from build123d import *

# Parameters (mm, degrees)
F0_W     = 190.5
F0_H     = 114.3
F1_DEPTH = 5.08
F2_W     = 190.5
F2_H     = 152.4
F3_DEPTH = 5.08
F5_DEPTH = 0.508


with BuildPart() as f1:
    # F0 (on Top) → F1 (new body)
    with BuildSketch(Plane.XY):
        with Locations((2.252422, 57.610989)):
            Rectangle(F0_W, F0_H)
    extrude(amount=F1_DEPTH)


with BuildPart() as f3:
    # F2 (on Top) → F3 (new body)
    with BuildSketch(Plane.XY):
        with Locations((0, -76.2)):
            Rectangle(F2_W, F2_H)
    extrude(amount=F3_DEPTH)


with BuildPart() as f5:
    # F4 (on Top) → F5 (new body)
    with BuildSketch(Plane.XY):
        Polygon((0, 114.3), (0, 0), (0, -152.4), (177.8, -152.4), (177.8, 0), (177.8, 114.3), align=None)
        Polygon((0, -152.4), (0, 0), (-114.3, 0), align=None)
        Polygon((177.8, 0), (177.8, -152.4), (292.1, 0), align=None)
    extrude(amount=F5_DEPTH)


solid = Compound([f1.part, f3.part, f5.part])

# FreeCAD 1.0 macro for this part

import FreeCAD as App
import Part
import Sketcher
Q = App.Units.Quantity


def add_polygon(sketch, points):
    """Adds a closed chain of lines whose ends are joined by coincident constraints."""
    first, n = sketch.GeometryCount, len(points)
    for a, b in zip(points, points[1:] + points[:1]):
        sketch.addGeometry(Part.LineSegment(App.Vector(*a, 0), App.Vector(*b, 0)), False)
    for i in range(n):
        sketch.addConstraint(Sketcher.Constraint("Coincident", first + i, 2, first + (i + 1) % n, 1))

doc = App.newDocument("Part")
params = doc.addObject("Spreadsheet::Sheet", "Params")
for row, (alias, value) in enumerate([
    ("sketch1_width", "7.5 in"),
    ("sketch1_height", "4.5 in"),
    ("pad1_length", "0.2 in"),
    ("sketch2_height", "6 in"),
    ("sketch2_width", "7.5 in"),
    ("pad2_length", "0.2 in"),
    ("sketch3_width", "7 in"),
    ("sketch3_width2", "4.5 in"),
    ("pad3_length", "0.02 in"),
], start=1):
    params.set(f"A{row}", alias)
    params.set(f"B{row}", "=" + value)
    params.setAlias(f"B{row}", alias)

body = doc.addObject("PartDesign::Body", "Body")

# Sketch on XY plane
sketch1 = body.newObject("Sketcher::SketchObject", "Sketch")
sketch1.AttachmentSupport = (doc.getObject("XY_Plane"), [""])
sketch1.MapMode = "FlatFace"
add_polygon(sketch1, [(-93, 115), (-93, 0), (98, 0), (98, 115)])  # lines 0-3
sketch1.addConstraint([
    Sketcher.Constraint("Vertical", 0),
    Sketcher.Constraint("Horizontal", 1),
    Sketcher.Constraint("Vertical", 2),
    Sketcher.Constraint("Horizontal", 3),
    Sketcher.Constraint("DistanceX", 1, 1, 1, 2, Q("7.5 in")),
    Sketcher.Constraint("DistanceY", 0, 2, 0, 1, Q("4.5 in")),
    Sketcher.Constraint("DistanceX", 0, 2, -1, 1, 92.997578),
    Sketcher.Constraint("DistanceY", -1, 1, 0, 2, 0.460989),
])
sketch1.setExpression("Constraints[8]", "Params.sketch1_width")
sketch1.setExpression("Constraints[9]", "Params.sketch1_height")
pad1 = body.newObject("PartDesign::Pad", "Pad")
pad1.Profile = sketch1
pad1.setExpression("Length", "Params.pad1_length")
body2 = doc.addObject("PartDesign::Body", "Body001")

# Sketch on XY plane
sketch2 = body2.newObject("Sketcher::SketchObject", "Sketch001")
sketch2.AttachmentSupport = (doc.getObject("XY_Plane001"), [""])
sketch2.MapMode = "FlatFace"
add_polygon(sketch2, [(-95, 0), (-95, -152), (95, -152), (95, 0)])  # lines 0-3
sketch2.addConstraint([
    Sketcher.Constraint("Vertical", 0),
    Sketcher.Constraint("Horizontal", 1),
    Sketcher.Constraint("Vertical", 2),
    Sketcher.Constraint("Horizontal", 3),
    Sketcher.Constraint("Symmetric", 2, 2, 3, 2, -1, 1),
    Sketcher.Constraint("DistanceY", 0, 2, 0, 1, Q("6 in")),
    Sketcher.Constraint("DistanceX", 1, 1, 1, 2, Q("7.5 in")),
])
sketch2.setExpression("Constraints[9]", "Params.sketch2_height")
sketch2.setExpression("Constraints[10]", "Params.sketch2_width")
pad2 = body2.newObject("PartDesign::Pad", "Pad001")
pad2.Profile = sketch2
pad2.setExpression("Length", "Params.pad2_length")
body3 = doc.addObject("PartDesign::Body", "Body002")

# Sketch on XY plane
sketch3 = body3.newObject("Sketcher::SketchObject", "Sketch002")
sketch3.AttachmentSupport = (doc.getObject("XY_Plane002"), [""])
sketch3.MapMode = "FlatFace"
add_polygon(sketch3, [(0, 114), (0, 0), (-114, 0), (0, -152), (178, -152), (292, 0), (178, 0), (178, 114)])  # lines 0-7
sketch3.addConstraint([
    Sketcher.Constraint("Vertical", 0),
    Sketcher.Constraint("Horizontal", 1),
    Sketcher.Constraint("Horizontal", 3),
    Sketcher.Constraint("Horizontal", 5),
    Sketcher.Constraint("Vertical", 6),
    Sketcher.Constraint("Horizontal", 7),
    Sketcher.Constraint("Coincident", 0, 2, -1, 1),
    Sketcher.Constraint("PointOnObject", 2, 2, -2),
    Sketcher.Constraint("PointOnObject", 4, 2, -1),
    Sketcher.Constraint("Vertical", 3, 2, 5, 2),
    Sketcher.Constraint("Equal", 1, 5),
    Sketcher.Constraint("Equal", 5, 0),
    Sketcher.Constraint("DistanceX", 3, 1, 3, 2, Q("7 in")),
    Sketcher.Constraint("DistanceX", 1, 2, 1, 1, Q("4.5 in")),
    Sketcher.Constraint("DistanceY", 2, 2, -1, 1, Q("6 in")),
])
sketch3.setExpression("Constraints[20]", "Params.sketch3_width")
sketch3.setExpression("Constraints[21]", "Params.sketch3_width2")
pad3 = body3.newObject("PartDesign::Pad", "Pad002")
pad3.Profile = sketch3
pad3.setExpression("Length", "Params.pad3_length")

doc.recompute()
